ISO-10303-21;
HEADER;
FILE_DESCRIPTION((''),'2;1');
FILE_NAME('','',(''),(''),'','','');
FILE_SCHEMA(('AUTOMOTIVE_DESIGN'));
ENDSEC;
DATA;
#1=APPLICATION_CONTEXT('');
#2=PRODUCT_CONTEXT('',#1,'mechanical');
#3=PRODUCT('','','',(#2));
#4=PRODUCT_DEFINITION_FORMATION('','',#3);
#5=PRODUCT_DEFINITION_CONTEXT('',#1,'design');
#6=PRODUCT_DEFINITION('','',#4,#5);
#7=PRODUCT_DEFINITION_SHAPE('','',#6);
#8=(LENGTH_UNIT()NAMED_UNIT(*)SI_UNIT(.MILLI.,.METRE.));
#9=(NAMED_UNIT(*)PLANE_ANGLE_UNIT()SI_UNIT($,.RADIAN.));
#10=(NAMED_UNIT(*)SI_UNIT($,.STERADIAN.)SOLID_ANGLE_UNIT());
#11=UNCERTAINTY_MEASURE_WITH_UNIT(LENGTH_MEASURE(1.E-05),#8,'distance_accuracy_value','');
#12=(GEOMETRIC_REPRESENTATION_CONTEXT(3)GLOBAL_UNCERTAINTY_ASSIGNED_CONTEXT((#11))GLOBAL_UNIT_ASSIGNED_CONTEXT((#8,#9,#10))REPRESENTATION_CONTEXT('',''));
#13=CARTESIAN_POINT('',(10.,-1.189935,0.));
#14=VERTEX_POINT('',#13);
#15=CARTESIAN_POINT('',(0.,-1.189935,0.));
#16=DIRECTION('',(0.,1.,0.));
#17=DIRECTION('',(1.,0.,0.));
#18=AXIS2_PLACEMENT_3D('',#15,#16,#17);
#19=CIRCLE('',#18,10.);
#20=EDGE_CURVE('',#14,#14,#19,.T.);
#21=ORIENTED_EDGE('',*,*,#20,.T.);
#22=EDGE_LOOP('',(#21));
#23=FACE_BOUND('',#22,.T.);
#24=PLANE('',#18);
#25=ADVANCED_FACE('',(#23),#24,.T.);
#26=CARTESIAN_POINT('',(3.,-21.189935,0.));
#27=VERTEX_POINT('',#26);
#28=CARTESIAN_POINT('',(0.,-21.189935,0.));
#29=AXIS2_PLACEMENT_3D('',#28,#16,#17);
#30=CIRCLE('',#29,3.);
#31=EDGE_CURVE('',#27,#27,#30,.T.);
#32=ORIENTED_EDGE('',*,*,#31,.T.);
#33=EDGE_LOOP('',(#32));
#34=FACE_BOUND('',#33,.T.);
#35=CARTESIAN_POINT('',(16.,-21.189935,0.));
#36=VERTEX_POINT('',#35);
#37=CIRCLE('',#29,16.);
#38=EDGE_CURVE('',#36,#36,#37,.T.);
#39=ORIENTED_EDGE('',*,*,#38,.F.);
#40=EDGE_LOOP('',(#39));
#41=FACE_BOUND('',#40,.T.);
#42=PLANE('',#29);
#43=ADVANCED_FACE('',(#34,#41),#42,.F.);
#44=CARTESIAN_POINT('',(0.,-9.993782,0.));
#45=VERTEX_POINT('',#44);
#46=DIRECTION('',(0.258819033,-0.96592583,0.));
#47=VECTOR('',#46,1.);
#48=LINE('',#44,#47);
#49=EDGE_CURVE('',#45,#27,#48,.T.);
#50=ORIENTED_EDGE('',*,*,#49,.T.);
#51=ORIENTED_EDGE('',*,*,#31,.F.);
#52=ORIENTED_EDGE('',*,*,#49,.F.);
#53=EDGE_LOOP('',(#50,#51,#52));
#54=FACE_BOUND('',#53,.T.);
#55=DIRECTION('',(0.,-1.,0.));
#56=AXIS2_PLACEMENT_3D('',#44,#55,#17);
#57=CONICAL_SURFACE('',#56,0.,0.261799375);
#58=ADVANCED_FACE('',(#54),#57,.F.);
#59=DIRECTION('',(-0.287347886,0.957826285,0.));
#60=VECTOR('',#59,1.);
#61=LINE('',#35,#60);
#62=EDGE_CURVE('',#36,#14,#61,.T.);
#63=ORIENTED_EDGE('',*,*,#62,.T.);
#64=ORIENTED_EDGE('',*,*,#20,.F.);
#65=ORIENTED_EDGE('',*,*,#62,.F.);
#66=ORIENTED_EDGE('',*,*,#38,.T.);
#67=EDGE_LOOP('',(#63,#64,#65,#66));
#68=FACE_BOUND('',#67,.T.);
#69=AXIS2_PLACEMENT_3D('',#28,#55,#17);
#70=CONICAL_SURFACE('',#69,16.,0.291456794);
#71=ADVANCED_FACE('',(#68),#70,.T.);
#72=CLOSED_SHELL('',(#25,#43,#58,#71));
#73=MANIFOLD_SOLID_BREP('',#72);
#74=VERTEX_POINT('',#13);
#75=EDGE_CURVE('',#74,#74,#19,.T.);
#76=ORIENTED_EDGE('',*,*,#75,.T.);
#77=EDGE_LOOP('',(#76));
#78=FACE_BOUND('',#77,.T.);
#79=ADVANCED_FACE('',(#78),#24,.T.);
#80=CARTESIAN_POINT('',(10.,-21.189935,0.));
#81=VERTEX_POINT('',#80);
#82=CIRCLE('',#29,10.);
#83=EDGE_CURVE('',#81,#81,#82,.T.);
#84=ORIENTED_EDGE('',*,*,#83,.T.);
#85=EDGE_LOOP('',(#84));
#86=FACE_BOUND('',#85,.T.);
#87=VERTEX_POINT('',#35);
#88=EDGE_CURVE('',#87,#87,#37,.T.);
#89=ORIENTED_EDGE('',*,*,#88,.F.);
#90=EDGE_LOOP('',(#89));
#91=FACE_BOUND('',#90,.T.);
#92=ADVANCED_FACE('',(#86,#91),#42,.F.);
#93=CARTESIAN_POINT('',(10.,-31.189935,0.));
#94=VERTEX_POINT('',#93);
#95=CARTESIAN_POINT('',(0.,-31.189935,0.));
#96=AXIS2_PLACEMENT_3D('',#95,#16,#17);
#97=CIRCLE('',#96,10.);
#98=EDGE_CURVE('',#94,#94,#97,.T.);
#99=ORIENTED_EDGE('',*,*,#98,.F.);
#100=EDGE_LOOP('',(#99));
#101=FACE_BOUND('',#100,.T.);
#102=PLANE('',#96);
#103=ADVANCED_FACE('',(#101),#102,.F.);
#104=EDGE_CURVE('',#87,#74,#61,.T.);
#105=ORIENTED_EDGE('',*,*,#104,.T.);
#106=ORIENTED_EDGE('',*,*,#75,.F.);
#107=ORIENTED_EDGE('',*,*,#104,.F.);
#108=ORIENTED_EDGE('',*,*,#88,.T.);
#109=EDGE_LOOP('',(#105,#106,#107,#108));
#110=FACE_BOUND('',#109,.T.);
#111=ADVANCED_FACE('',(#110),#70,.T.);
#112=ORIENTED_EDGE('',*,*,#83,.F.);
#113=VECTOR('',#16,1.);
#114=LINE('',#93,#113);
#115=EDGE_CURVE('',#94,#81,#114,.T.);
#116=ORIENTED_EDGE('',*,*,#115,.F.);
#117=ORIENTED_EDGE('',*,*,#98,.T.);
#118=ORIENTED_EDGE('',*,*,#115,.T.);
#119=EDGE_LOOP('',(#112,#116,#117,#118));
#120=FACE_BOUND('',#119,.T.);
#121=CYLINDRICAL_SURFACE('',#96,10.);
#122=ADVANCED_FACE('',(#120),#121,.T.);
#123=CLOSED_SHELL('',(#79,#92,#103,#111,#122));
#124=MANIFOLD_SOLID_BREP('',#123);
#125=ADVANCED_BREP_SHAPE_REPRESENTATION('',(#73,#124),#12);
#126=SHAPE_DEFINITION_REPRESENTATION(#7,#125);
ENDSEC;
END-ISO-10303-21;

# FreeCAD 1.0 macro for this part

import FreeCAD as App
import Part
import Sketcher
Q = App.Units.Quantity

doc = App.newDocument("Part")
body = doc.addObject("PartDesign::Body", "Body")

# Sketch on XY plane
sketch1 = body.newObject("Sketcher::SketchObject", "Sketch")
sketch1.AttachmentSupport = (doc.getObject("XY_Plane"), [""])
sketch1.MapMode = "FlatFace"
sketch1.addGeometry([
    Part.LineSegment(App.Vector(16, -21, 0), App.Vector(10, -1, 0)),  # 0
    Part.LineSegment(App.Vector(10, -1, 0), App.Vector(0, -1, 0)),  # 1
    Part.LineSegment(App.Vector(0, -1, 0), App.Vector(0, -10, 0)),  # 2
    Part.LineSegment(App.Vector(0, -10, 0), App.Vector(3, -21, 0)),  # 3
    Part.LineSegment(App.Vector(3, -21, 0), App.Vector(16, -21, 0)),  # 4
], False)
sketch1.addConstraint([
    Sketcher.Constraint("Coincident", 0, 2, 1, 1),
    Sketcher.Constraint("Coincident", 1, 2, 2, 1),
    Sketcher.Constraint("Coincident", 2, 2, 3, 1),
    Sketcher.Constraint("Coincident", 3, 2, 4, 1),
    Sketcher.Constraint("Coincident", 4, 2, 0, 1),
    Sketcher.Constraint("Horizontal", 1),
    Sketcher.Constraint("Vertical", 2),
    Sketcher.Constraint("Horizontal", 4),
    Sketcher.Constraint("PointOnObject", 1, 2, -2),
    Sketcher.Constraint("DistanceX", 1, 2, 1, 1, 10.0),
    Sketcher.Constraint("DistanceX", 4, 1, 4, 2, 13.0),
    Sketcher.Constraint("Angle", 3, Q("-75.000001 deg")),
    Sketcher.Constraint("DistanceX", -1, 1, 3, 2, 3.0),
    Sketcher.Constraint("DistanceY", 3, 2, 1, 2, 20.0),
    Sketcher.Constraint("DistanceY", 0, 2, -1, 1, 1.189935),
])
revolution = body.newObject("PartDesign::Revolution", "Revolution")
revolution.Profile = sketch1
revolution.ReferenceAxis = (sketch1, ["V_Axis"])
revolution.Angle = 360
body2 = doc.addObject("PartDesign::Body", "Body001")

# Sketch on XY plane
sketch2 = body2.newObject("Sketcher::SketchObject", "Sketch001")
sketch2.AttachmentSupport = (doc.getObject("XY_Plane001"), [""])
sketch2.MapMode = "FlatFace"
sketch2.addGeometry([
    Part.LineSegment(App.Vector(16, -21, 0), App.Vector(10, -1, 0)),  # 0
    Part.LineSegment(App.Vector(10, -1, 0), App.Vector(0, -1, 0)),  # 1
    Part.LineSegment(App.Vector(0, -1, 0), App.Vector(0, -31, 0)),  # 2
    Part.LineSegment(App.Vector(0, -31, 0), App.Vector(10, -31, 0)),  # 3
    Part.LineSegment(App.Vector(10, -31, 0), App.Vector(10, -21, 0)),  # 4
    Part.LineSegment(App.Vector(10, -21, 0), App.Vector(16, -21, 0)),  # 5
], False)
sketch2.addConstraint([
    Sketcher.Constraint("Coincident", 0, 2, 1, 1),
    Sketcher.Constraint("Coincident", 1, 2, 2, 1),
    Sketcher.Constraint("Coincident", 2, 2, 3, 1),
    Sketcher.Constraint("Coincident", 3, 2, 4, 1),
    Sketcher.Constraint("Coincident", 4, 2, 5, 1),
    Sketcher.Constraint("Coincident", 5, 2, 0, 1),
    Sketcher.Constraint("Horizontal", 1),
    Sketcher.Constraint("Vertical", 2),
    Sketcher.Constraint("Horizontal", 3),
    Sketcher.Constraint("Vertical", 4),
    Sketcher.Constraint("Horizontal", 5),
    Sketcher.Constraint("PointOnObject", 1, 2, -2),
    Sketcher.Constraint("Vertical", 0, 2, 3, 2),
    Sketcher.Constraint("Equal", 3, 4),
    Sketcher.Constraint("DistanceX", 1, 2, 1, 1, 10.0),
    Sketcher.Constraint("DistanceX", 5, 1, 5, 2, 6.0),
    Sketcher.Constraint("DistanceY", 2, 2, 2, 1, 30.0),
    Sketcher.Constraint("DistanceY", 0, 2, -1, 1, 1.189935),
])
revolution2 = body2.newObject("PartDesign::Revolution", "Revolution001")
revolution2.Profile = sketch2
revolution2.ReferenceAxis = (sketch2, ["V_Axis"])
revolution2.Angle = 360

doc.recompute()
